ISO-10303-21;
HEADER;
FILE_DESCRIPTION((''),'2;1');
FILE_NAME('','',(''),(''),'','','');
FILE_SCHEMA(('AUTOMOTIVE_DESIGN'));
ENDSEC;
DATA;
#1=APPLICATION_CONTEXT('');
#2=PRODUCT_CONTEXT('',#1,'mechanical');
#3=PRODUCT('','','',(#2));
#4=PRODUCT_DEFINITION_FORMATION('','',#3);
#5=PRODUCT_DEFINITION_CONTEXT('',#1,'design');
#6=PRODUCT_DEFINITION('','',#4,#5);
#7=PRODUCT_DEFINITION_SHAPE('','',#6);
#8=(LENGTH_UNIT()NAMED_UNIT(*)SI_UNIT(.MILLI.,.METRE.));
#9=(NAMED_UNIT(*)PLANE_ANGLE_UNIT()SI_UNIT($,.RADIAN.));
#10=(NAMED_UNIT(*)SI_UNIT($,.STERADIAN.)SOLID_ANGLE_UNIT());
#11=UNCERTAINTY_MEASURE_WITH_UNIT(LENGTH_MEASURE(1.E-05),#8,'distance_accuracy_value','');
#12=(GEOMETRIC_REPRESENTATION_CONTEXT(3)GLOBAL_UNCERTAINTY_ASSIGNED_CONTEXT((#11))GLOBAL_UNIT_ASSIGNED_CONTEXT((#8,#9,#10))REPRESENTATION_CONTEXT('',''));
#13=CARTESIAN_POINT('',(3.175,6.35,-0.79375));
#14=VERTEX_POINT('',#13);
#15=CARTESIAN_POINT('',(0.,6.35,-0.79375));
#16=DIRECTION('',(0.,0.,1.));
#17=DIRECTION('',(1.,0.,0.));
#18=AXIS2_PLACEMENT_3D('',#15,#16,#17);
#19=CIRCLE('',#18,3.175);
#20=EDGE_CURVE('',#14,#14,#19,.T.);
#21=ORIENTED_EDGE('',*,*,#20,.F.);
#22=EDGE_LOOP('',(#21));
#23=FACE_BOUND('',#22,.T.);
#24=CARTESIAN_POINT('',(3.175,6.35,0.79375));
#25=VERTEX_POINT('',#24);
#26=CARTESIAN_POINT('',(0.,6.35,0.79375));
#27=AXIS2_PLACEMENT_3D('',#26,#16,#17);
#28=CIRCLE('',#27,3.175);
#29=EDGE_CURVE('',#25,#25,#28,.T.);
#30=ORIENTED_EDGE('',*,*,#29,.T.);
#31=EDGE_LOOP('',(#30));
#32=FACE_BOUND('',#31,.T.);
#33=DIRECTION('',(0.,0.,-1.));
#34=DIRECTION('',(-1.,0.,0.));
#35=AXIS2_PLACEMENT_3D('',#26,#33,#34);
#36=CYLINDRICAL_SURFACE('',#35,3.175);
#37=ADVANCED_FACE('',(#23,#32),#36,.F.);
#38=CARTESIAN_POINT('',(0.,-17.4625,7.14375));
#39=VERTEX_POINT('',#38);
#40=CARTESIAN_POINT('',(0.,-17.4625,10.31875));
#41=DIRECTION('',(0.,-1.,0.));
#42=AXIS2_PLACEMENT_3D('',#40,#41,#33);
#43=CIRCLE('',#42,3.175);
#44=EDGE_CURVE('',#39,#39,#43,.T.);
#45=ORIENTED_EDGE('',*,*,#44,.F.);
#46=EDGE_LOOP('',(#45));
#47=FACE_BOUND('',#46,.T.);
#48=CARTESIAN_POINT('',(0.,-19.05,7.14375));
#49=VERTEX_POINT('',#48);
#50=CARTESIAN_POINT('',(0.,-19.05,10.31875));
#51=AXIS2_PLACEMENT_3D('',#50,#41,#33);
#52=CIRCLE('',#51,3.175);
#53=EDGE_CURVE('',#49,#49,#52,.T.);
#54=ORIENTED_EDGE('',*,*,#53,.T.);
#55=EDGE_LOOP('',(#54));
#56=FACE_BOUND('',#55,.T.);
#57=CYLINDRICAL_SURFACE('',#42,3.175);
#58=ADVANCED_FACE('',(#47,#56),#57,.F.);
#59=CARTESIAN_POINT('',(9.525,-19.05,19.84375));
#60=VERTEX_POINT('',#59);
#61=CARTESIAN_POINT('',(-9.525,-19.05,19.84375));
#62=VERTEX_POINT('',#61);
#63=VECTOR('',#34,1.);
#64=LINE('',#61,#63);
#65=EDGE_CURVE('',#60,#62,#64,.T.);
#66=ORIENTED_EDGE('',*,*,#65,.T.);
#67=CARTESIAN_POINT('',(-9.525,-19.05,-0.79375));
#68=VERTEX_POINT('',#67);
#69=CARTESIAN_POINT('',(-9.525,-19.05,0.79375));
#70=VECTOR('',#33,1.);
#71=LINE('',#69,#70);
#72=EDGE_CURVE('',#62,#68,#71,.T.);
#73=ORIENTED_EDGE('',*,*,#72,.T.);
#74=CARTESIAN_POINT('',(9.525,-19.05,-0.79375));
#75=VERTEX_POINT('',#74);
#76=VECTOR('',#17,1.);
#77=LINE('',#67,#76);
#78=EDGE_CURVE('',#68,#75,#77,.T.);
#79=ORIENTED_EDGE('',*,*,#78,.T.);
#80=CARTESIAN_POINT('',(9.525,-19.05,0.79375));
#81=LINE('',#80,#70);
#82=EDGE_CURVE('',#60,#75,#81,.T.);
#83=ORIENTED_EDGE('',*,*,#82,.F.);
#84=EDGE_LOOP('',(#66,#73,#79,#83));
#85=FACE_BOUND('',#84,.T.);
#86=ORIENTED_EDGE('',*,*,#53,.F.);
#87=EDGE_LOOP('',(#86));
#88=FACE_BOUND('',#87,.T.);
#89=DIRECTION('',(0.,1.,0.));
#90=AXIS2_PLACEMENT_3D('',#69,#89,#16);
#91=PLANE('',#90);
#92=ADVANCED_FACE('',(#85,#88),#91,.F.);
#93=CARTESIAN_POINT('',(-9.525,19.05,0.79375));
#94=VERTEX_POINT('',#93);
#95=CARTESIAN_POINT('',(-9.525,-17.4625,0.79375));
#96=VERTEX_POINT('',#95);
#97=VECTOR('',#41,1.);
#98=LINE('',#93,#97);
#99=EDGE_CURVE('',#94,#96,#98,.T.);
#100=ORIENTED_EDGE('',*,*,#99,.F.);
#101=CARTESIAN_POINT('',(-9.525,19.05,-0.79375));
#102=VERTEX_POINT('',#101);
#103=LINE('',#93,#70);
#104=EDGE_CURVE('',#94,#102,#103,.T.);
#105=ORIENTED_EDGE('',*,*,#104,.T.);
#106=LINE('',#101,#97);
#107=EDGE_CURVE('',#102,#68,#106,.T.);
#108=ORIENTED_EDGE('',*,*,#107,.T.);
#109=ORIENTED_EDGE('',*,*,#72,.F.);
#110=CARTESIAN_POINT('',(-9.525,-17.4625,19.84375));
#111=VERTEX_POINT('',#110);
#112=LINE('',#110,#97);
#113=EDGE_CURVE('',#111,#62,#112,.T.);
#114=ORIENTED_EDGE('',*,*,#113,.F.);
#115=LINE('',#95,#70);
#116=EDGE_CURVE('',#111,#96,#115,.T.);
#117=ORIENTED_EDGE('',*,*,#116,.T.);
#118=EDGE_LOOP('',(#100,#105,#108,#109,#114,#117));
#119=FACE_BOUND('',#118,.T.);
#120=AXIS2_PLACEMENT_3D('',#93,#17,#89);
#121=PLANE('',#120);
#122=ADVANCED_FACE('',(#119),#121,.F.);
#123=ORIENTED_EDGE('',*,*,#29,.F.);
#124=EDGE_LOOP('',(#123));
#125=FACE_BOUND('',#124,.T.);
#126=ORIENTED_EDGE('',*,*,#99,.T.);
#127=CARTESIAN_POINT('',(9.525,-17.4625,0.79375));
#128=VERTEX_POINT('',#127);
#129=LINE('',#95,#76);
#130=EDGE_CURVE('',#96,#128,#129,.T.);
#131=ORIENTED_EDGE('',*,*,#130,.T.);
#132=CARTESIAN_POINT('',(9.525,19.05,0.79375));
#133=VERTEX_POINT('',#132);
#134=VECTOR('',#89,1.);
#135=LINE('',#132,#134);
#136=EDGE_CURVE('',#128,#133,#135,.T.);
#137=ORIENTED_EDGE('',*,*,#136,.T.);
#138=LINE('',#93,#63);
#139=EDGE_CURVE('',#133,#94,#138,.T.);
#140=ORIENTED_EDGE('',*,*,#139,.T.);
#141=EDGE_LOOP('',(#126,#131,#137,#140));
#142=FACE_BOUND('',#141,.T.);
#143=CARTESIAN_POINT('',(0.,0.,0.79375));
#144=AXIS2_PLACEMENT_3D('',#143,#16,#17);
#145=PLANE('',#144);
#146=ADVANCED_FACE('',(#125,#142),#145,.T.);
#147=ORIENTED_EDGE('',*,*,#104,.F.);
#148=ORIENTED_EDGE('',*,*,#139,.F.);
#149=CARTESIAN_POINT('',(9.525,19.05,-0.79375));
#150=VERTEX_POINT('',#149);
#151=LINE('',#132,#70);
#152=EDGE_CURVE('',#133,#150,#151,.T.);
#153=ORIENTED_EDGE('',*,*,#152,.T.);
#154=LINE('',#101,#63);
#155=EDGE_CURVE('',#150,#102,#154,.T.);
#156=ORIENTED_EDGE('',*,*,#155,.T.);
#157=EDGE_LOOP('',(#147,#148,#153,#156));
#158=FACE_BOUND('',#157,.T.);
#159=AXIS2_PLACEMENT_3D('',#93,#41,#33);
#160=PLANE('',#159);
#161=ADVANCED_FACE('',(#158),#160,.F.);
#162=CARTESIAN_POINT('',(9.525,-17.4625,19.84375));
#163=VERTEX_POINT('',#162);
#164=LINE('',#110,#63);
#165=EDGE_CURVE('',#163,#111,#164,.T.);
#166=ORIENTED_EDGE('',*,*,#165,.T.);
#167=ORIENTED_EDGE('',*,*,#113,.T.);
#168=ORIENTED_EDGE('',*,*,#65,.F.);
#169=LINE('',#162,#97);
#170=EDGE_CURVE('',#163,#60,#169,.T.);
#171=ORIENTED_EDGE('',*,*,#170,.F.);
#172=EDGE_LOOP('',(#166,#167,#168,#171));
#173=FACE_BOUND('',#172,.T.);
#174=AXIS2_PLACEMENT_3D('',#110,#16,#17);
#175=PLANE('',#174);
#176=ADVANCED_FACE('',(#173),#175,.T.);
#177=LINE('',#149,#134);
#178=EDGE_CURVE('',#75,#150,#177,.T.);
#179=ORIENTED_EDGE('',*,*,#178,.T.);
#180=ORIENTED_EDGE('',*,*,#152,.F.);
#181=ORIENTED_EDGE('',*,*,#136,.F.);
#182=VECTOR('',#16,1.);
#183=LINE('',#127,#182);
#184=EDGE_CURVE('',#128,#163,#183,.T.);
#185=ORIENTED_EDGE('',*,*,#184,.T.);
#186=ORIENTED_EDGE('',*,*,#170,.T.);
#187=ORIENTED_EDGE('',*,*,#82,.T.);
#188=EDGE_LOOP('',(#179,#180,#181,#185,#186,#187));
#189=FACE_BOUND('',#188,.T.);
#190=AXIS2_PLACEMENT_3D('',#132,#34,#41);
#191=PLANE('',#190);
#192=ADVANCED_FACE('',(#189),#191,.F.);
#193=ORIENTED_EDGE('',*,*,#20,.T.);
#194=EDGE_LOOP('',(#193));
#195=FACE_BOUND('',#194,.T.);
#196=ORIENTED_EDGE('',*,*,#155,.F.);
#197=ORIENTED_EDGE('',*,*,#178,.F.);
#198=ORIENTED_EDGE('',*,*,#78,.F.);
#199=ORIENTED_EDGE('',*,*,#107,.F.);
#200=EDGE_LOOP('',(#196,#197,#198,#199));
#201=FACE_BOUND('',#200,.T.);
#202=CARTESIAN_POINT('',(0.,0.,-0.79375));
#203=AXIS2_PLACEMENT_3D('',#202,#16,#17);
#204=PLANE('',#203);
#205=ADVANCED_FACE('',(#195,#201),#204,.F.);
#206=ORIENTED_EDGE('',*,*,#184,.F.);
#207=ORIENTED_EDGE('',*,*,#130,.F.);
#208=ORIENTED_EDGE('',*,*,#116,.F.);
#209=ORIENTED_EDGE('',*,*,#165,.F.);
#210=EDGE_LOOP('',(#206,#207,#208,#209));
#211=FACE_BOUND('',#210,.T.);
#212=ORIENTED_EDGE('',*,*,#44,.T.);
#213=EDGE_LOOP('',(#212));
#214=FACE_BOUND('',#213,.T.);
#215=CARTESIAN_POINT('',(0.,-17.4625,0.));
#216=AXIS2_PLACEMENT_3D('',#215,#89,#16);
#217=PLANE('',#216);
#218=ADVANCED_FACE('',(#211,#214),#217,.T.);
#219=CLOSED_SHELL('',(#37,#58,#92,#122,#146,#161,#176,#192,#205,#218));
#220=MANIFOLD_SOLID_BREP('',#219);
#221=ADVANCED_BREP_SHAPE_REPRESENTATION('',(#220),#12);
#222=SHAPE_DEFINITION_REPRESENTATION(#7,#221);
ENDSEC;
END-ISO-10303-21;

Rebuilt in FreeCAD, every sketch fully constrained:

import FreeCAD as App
import Part
import Sketcher
Q = App.Units.Quantity


def add_polygon(sketch, points):
    """Adds a closed chain of lines whose ends are joined by coincident constraints."""
    first, n = sketch.GeometryCount, len(points)
    for a, b in zip(points, points[1:] + points[:1]):
        sketch.addGeometry(Part.LineSegment(App.Vector(*a, 0), App.Vector(*b, 0)), False)
    for i in range(n):
        sketch.addConstraint(Sketcher.Constraint("Coincident", first + i, 2, first + (i + 1) % n, 1))

doc = App.newDocument("Part")
params = doc.addObject("Spreadsheet::Sheet", "Params")
for row, (alias, value) in enumerate([
    ("sketch1_diameter", "0.25 in"),
    ("sketch1_height", "1.5 in"),
    ("sketch1_width", "0.75 in"),
    ("pad1_length", "0.0625 in"),
    ("sketch2_diameter", "0.25 in"),
    ("sketch2_width", "0.75 in"),
    ("pad2_length", "0.0625 in"),
], start=1):
    params.set(f"A{row}", alias)
    params.set(f"B{row}", "=" + value)
    params.setAlias(f"B{row}", alias)

body = doc.addObject("PartDesign::Body", "Body")

# Sketch on XY plane
sketch1 = body.newObject("Sketcher::SketchObject", "Sketch")
sketch1.AttachmentSupport = (doc.getObject("XY_Plane"), [""])
sketch1.MapMode = "FlatFace"
add_polygon(sketch1, [(-9.5, 19.1), (-9.5, -19.1), (9.5, -19.1), (9.5, 19.1)])  # lines 0-3
sketch1.addGeometry(Part.Circle(App.Vector(0, 6.3, 0), App.Vector(0, 0, 1), 3.2), False)  # 4
sketch1.addConstraint([
    Sketcher.Constraint("Vertical", 0),
    Sketcher.Constraint("Horizontal", 1),
    Sketcher.Constraint("Vertical", 2),
    Sketcher.Constraint("Horizontal", 3),
    Sketcher.Constraint("Symmetric", 0, 2, 2, 2, -1, 1),
    Sketcher.Constraint("PointOnObject", 4, 3, -2),
    Sketcher.Constraint("Diameter", 4, Q("0.25 in")),
    Sketcher.Constraint("DistanceY", 0, 2, 0, 1, Q("1.5 in")),
    Sketcher.Constraint("DistanceY", 0, 2, 4, 3, Q("1 in")),
    Sketcher.Constraint("DistanceX", 1, 1, 1, 2, Q("0.75 in")),
])
sketch1.setExpression("Constraints[10]", "Params.sketch1_diameter")
sketch1.setExpression("Constraints[11]", "Params.sketch1_height")
sketch1.setExpression("Constraints[13]", "Params.sketch1_width")
pad1 = body.newObject("PartDesign::Pad", "Pad")
pad1.Profile = sketch1
pad1.setExpression("Length", "Params.pad1_length")
pad1.Midplane = True

# Sketch on XZ plane
sketch2 = body.newObject("Sketcher::SketchObject", "Sketch001")
sketch2.AttachmentSupport = (doc.getObject("XZ_Plane"), [""])
sketch2.MapMode = "FlatFace"
sketch2.AttachmentOffset = App.Placement(App.Vector(0, 0, 0.75 * 25.4), App.Rotation())
add_polygon(sketch2, [(-9.5, 19.8), (-9.5, 0.8), (9.5, 0.8), (9.5, 19.8)])  # lines 0-3
sketch2.addGeometry(Part.Circle(App.Vector(0, 10.3, 0), App.Vector(0, 0, 1), 3.2), False)  # 4
sketch2.addConstraint([
    Sketcher.Constraint("Vertical", 0),
    Sketcher.Constraint("Horizontal", 1),
    Sketcher.Constraint("Vertical", 2),
    Sketcher.Constraint("Horizontal", 3),
    Sketcher.Constraint("PointOnObject", 4, 3, -2),
    Sketcher.Constraint("Equal", 3, 0),
    Sketcher.Constraint("Diameter", 4, Q("0.25 in")),
    Sketcher.Constraint("DistanceX", 1, 1, 1, 2, Q("0.75 in")),
    Sketcher.Constraint("DistanceY", -1, 1, 4, 3, Q("0.40625 in")),
    Sketcher.Constraint("DistanceX", 0, 2, -1, 1, Q("0.375 in")),
    Sketcher.Constraint("DistanceY", -1, 1, 0, 2, Q("0.03125 in")),
])
sketch2.setExpression("Constraints[10]", "Params.sketch2_diameter")
sketch2.setExpression("Constraints[11]", "Params.sketch2_width")
pad2 = body.newObject("PartDesign::Pad", "Pad001")
pad2.Profile = sketch2
pad2.setExpression("Length", "Params.pad2_length")
pad2.Reversed = True

doc.recompute()
